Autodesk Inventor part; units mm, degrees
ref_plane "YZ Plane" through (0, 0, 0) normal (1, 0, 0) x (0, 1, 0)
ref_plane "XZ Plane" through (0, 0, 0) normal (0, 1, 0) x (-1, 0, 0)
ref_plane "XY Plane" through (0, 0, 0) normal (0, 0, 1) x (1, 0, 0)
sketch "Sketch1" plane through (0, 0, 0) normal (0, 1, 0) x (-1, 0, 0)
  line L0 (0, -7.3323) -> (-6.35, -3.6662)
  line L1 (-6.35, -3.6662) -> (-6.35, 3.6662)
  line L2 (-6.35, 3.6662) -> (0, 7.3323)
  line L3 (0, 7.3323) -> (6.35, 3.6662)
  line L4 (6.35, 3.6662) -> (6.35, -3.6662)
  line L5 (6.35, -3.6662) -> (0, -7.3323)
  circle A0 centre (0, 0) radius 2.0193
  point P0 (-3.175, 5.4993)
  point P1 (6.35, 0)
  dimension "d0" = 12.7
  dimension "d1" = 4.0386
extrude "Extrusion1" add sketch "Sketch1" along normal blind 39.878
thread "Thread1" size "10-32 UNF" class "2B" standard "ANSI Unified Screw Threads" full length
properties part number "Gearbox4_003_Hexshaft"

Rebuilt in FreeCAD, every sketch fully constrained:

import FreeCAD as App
import Part
import Sketcher
from FreeCAD import Vector
Q = App.Units.Quantity


def add_polygon(sketch, points):
    """Adds a closed chain of lines whose ends are joined by coincident constraints."""
    first, n = sketch.GeometryCount, len(points)
    for a, b in zip(points, points[1:] + points[:1]):
        sketch.addGeometry(Part.LineSegment(App.Vector(*a, 0), App.Vector(*b, 0)), False)
    for i in range(n):
        sketch.addConstraint(Sketcher.Constraint("Coincident", first + i, 2, first + (i + 1) % n, 1))

doc = App.newDocument("Part")
body = doc.addObject("PartDesign::Body", "Body")

# Sketch on XZ plane
sketch1 = body.newObject("Sketcher::SketchObject", "Sketch")
sketch1.AttachmentSupport = (doc.getObject("XZ_Plane"), [""])
sketch1.MapMode = "FlatFace"
add_polygon(sketch1, [(6.3, -3.7), (0, -7.3), (-6.3, -3.7), (-6.3, 3.7), (0, 7.3), (6.3, 3.7)])  # lines 0-5
sketch1.addGeometry(Part.Circle(Vector(0, 0, 0), Vector(0, 0, 1), 2), False)  # 6
sketch1.addConstraint([
    Sketcher.Constraint("Vertical", 2),
    Sketcher.Constraint("Vertical", 5),
    Sketcher.Constraint("Coincident", 6, 3, -1, 1),
    Sketcher.Constraint("Symmetric", 0, 2, 3, 2, -1, 1),
    Sketcher.Constraint("Symmetric", 1, 2, 4, 2, -1, 1),
    Sketcher.Constraint("PointOnObject", 0, 2, -2),
    Sketcher.Constraint("Parallel", 0, 3),
    Sketcher.Constraint("Horizontal", 2, 2, 4, 2),
    Sketcher.Constraint("Diameter", 6, Q("0.159 in")),
    Sketcher.Constraint("DistanceX", 2, 2, 4, 2, Q("0.5 in")),
    Sketcher.Constraint("Angle", 0, Q("-150.0005 deg")),
    Sketcher.Constraint("DistanceY", 0, 2, 2, 2, Q("0.433 in")),
])
pad1 = body.newObject("PartDesign::Pad", "Pad")
pad1.Profile = sketch1
pad1.Length = Q("1.57 in")
pad1.Reversed = True

doc.recompute()
